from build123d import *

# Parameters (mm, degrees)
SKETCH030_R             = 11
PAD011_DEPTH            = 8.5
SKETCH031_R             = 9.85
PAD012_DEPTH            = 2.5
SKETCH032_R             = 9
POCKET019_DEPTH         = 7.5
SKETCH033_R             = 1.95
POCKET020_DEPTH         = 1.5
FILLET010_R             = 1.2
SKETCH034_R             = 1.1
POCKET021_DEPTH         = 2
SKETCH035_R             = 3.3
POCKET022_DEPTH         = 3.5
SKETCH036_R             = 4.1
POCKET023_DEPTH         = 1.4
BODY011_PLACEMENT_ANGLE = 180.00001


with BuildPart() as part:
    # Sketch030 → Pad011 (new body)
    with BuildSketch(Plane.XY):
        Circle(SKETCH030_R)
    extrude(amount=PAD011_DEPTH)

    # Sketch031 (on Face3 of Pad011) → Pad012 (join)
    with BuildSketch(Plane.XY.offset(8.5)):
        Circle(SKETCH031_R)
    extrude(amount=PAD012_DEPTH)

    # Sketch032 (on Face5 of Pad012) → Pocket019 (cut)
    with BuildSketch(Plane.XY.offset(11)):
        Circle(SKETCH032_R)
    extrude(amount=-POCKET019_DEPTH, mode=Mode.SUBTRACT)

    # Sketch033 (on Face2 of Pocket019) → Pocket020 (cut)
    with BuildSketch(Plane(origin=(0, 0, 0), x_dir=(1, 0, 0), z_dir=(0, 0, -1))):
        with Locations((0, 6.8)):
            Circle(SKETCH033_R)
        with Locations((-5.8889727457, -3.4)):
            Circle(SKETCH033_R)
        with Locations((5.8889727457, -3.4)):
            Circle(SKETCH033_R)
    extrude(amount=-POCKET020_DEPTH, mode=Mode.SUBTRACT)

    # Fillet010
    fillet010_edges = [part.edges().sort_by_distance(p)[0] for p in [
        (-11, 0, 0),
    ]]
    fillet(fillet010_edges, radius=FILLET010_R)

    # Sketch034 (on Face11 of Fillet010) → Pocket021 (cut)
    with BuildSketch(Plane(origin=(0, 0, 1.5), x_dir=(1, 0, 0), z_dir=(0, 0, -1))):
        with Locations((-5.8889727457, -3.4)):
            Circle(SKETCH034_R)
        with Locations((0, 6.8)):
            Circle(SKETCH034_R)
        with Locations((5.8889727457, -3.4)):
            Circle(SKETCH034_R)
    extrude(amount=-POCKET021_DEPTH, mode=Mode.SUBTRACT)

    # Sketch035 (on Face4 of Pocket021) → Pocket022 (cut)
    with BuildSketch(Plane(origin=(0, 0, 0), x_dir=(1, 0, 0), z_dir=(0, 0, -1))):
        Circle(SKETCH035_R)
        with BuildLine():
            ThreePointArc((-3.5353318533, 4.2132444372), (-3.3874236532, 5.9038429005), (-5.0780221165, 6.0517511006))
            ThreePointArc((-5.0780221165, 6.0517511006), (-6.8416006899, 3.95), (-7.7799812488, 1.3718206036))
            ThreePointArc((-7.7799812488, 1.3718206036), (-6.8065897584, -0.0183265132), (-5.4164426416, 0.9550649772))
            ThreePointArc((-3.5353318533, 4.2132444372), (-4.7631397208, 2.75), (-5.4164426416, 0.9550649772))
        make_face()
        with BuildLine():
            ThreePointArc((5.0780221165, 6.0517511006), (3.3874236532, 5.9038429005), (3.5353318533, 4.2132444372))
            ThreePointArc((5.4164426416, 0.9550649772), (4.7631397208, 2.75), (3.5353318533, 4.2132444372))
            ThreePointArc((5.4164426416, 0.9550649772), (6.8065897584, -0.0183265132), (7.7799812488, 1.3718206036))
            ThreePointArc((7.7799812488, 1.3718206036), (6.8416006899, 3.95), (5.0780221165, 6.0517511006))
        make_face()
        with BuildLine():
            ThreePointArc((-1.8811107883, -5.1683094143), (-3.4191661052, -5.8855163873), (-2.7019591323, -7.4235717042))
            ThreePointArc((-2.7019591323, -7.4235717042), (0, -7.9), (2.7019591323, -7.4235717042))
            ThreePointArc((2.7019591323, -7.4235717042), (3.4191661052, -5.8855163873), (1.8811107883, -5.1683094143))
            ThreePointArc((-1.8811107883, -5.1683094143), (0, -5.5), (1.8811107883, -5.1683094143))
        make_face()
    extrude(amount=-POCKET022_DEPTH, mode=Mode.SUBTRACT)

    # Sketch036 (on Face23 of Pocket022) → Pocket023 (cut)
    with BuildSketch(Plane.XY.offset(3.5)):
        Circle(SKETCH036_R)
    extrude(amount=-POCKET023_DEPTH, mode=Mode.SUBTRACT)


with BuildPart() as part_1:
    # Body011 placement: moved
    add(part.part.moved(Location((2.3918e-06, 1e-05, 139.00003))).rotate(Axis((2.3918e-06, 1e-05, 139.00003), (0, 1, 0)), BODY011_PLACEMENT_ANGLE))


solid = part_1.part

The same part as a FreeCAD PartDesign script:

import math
import FreeCAD as App
import Part
import Sketcher
from FreeCAD import Vector


def edges_at(feature, points):
    """Names of the edges that pass closest to the given points."""
    edges = feature.Shape.Edges
    near = lambda p: min(range(len(edges)), key=lambda i: edges[i].distToShape(Part.Vertex(*p))[0])
    return sorted({f"Edge{near(p) + 1}" for p in points})

doc = App.newDocument("Part")
body = doc.addObject("PartDesign::Body", "Body")

# Sketch on XY plane
sketch1 = body.newObject("Sketcher::SketchObject", "Sketch")
sketch1.AttachmentSupport = (doc.getObject("XY_Plane"), [""])
sketch1.MapMode = "FlatFace"
sketch1.addGeometry(Part.Circle(Vector(0, 0, 0), Vector(0, 0, 1), 11), False)
sketch1.addConstraint([
    Sketcher.Constraint("Coincident", 0, 3, -1, 1),
    Sketcher.Constraint("Diameter", 0, 22.0),
])
pad1 = body.newObject("PartDesign::Pad", "Pad")
pad1.Profile = sketch1
pad1.Length = 8.5

# Sketch on XY plane
sketch2 = body.newObject("Sketcher::SketchObject", "Sketch001")
sketch2.AttachmentSupport = (doc.getObject("XY_Plane"), [""])
sketch2.MapMode = "FlatFace"
sketch2.AttachmentOffset = App.Placement(Vector(0, 0, 8.5), App.Rotation())
sketch2.addGeometry(Part.Circle(Vector(0, 0, 0), Vector(0, 0, 1), 9.85), False)
sketch2.addConstraint([
    Sketcher.Constraint("Coincident", 0, 3, -1, 1),
    Sketcher.Constraint("Diameter", 0, 19.7),
])
pad2 = body.newObject("PartDesign::Pad", "Pad001")
pad2.Profile = sketch2
pad2.Length = 2.5

# Sketch on XY plane
sketch3 = body.newObject("Sketcher::SketchObject", "Sketch002")
sketch3.AttachmentSupport = (doc.getObject("XY_Plane"), [""])
sketch3.MapMode = "FlatFace"
sketch3.AttachmentOffset = App.Placement(Vector(0, 0, 11), App.Rotation())
sketch3.addGeometry(Part.Circle(Vector(0, 0, 0), Vector(0, 0, 1), 9), False)
sketch3.addConstraint([
    Sketcher.Constraint("Coincident", 0, 3, -1, 1),
    Sketcher.Constraint("Diameter", 0, 18.0),
])
pocket1 = body.newObject("PartDesign::Pocket", "Pocket")
pocket1.Profile = sketch3
pocket1.Length = 7.5

# Sketch on XY plane
sketch4 = body.newObject("Sketcher::SketchObject", "Sketch003")
sketch4.AttachmentSupport = (doc.getObject("XY_Plane"), [""])
sketch4.MapMode = "FlatFace"
sketch4.addGeometry([
    Part.Circle(Vector(0, -6.8, 0), Vector(0, 0, 1), 1.95),
    Part.Circle(Vector(-5.888973, 3.4, 0), Vector(0, 0, 1), 1.95),
    Part.Circle(Vector(5.888973, 3.4, 0), Vector(0, 0, 1), 1.95),
], False)
sketch4.addConstraint([
    Sketcher.Constraint("Equal", 0, 1),
    Sketcher.Constraint("Equal", 1, 2),
    Sketcher.Constraint("Symmetric", 1, 3, 2, 3, -2),
    Sketcher.Constraint("PointOnObject", 0, 3, -2),
    Sketcher.Constraint("Diameter", 0, 3.9),
    Sketcher.Constraint("DistanceY", 0, 3, -1, 1, 6.8),
    Sketcher.Constraint("DistanceY", -1, 1, 1, 3, 3.4),
    Sketcher.Constraint("DistanceX", 1, 3, -1, 1, 5.888973),
])
pocket2 = body.newObject("PartDesign::Pocket", "Pocket001")
pocket2.Profile = sketch4
pocket2.Length = 1.5
pocket2.Reversed = True
doc.recompute()

fillet = body.newObject("PartDesign::Fillet", "Fillet")
fillet.Base = (pocket2, edges_at(pocket2, [(-11, 0, 0)]))
fillet.Radius = 1.2

# Sketch on XY plane
sketch5 = body.newObject("Sketcher::SketchObject", "Sketch004")
sketch5.AttachmentSupport = (doc.getObject("XY_Plane"), [""])
sketch5.MapMode = "FlatFace"
sketch5.AttachmentOffset = App.Placement(Vector(0, 0, 1.5), App.Rotation())
sketch5.addGeometry([
    Part.Circle(Vector(-5.888973, 3.4, 0), Vector(0, 0, 1), 1.1),
    Part.Circle(Vector(0, -6.8, 0), Vector(0, 0, 1), 1.1),
    Part.Circle(Vector(5.888973, 3.4, 0), Vector(0, 0, 1), 1.1),
], False)
sketch5.addConstraint([
    Sketcher.Constraint("Equal", 0, 1),
    Sketcher.Constraint("Equal", 1, 2),
    Sketcher.Constraint("Symmetric", 0, 3, 2, 3, -2),
    Sketcher.Constraint("PointOnObject", 1, 3, -2),
    Sketcher.Constraint("Diameter", 0, 2.2),
    Sketcher.Constraint("DistanceY", -1, 1, 0, 3, 3.4),
    Sketcher.Constraint("DistanceY", 1, 3, -1, 1, 6.8),
    Sketcher.Constraint("DistanceX", 0, 3, -1, 1, 5.888973),
])
pocket3 = body.newObject("PartDesign::Pocket", "Pocket002")
pocket3.Profile = sketch5
pocket3.Length = 2
pocket3.Reversed = True

# Sketch on XY plane
sketch6 = body.newObject("Sketcher::SketchObject", "Sketch005")
sketch6.AttachmentSupport = (doc.getObject("XY_Plane"), [""])
sketch6.MapMode = "FlatFace"
sketch6.addGeometry([
    Part.Circle(Vector(0, 0, 0), Vector(0, 0, 1), 3.3),  # 0
    Part.ArcOfCircle(Part.Circle(Vector(-4.306677, -5.132498, 0), Vector(0, 0, 1), 1.2), math.radians(-130), math.radians(50)),  # 1
    Part.ArcOfCircle(Part.Circle(Vector(0, 0, 0), Vector(0, 0, 1), 7.9), math.radians(-170), math.radians(-130)),  # 2
    Part.ArcOfCircle(Part.Circle(Vector(-6.598212, -1.163443, 0), Vector(0, 0, 1), 1.2), math.radians(10), math.radians(190)),  # 3
    Part.ArcOfCircle(Part.Circle(Vector(0, 0, 0), Vector(0, 0, 1), 5.5), math.radians(-170), math.radians(-130)),  # 4
    Part.ArcOfCircle(Part.Circle(Vector(4.306677, -5.132498, 0), Vector(0, 0, 1), 1.2), math.radians(130), math.radians(310)),  # 5
    Part.ArcOfCircle(Part.Circle(Vector(0, 0, 0), Vector(0, 0, 1), 5.5), math.radians(-50), math.radians(-10)),  # 6
    Part.ArcOfCircle(Part.Circle(Vector(6.598212, -1.163443, 0), Vector(0, 0, 1), 1.2), math.radians(-10), math.radians(170)),  # 7
    Part.ArcOfCircle(Part.Circle(Vector(0, 0, 0), Vector(0, 0, 1), 7.9), math.radians(-50), math.radians(-10)),  # 8
    Part.ArcOfCircle(Part.Circle(Vector(-2.291535, 6.295941, 0), Vector(0, 0, 1), 1.2), math.radians(110), math.radians(290)),  # 9
    Part.ArcOfCircle(Part.Circle(Vector(0, 0, 0), Vector(0, 0, 1), 7.9), math.radians(70), math.radians(110)),  # 10
    Part.ArcOfCircle(Part.Circle(Vector(2.291535, 6.295941, 0), Vector(0, 0, 1), 1.2), math.radians(-110), math.radians(70)),  # 11
    Part.ArcOfCircle(Part.Circle(Vector(0, 0, 0), Vector(0, 0, 1), 5.5), math.radians(70), math.radians(110)),  # 12
], False)
sketch6.addConstraint([
    Sketcher.Constraint("Tangent", 1, 1, 2, 2),
    Sketcher.Constraint("Tangent", 2, 1, 3, 2),
    Sketcher.Constraint("Tangent", 3, 1, 4, 1),
    Sketcher.Constraint("Tangent", 4, 2, 1, 2),
    Sketcher.Constraint("Tangent", 5, 1, 6, 1),
    Sketcher.Constraint("Tangent", 6, 2, 7, 2),
    Sketcher.Constraint("Tangent", 7, 1, 8, 2),
    Sketcher.Constraint("Tangent", 8, 1, 5, 2),
    Sketcher.Constraint("Tangent", 9, 1, 10, 2),
    Sketcher.Constraint("Tangent", 10, 1, 11, 2),
    Sketcher.Constraint("Tangent", 11, 1, 12, 1),
    Sketcher.Constraint("Tangent", 12, 2, 9, 2),
    Sketcher.Constraint("Coincident", 0, 3, -1, 1),
    Sketcher.Constraint("Coincident", 2, 3, -1, 1),
    Sketcher.Constraint("Coincident", 4, 3, -1, 1),
    Sketcher.Constraint("Coincident", 6, 3, -1, 1),
    Sketcher.Constraint("Coincident", 8, 3, -1, 1),
    Sketcher.Constraint("Coincident", 10, 3, -1, 1),
    Sketcher.Constraint("Coincident", 12, 3, -1, 1),
    Sketcher.Constraint("Equal", 3, 5),
    Sketcher.Constraint("Equal", 4, 6),
    Sketcher.Constraint("Equal", 7, 9),
    Sketcher.Constraint("Equal", 8, 10),
    Sketcher.Constraint("Horizontal", 1, 3, 5, 3),
    Sketcher.Constraint("Horizontal", 3, 3, 7, 3),
    Sketcher.Constraint("Horizontal", 9, 3, 11, 3),
    Sketcher.Constraint("Diameter", 0, 6.6),
    Sketcher.Constraint("Radius", 1, 1.2),
    Sketcher.Constraint("Radius", 2, 7.9),
    Sketcher.Constraint("DistanceY", 4, 2, 3, 3, 3.049802),
    Sketcher.Constraint("DistanceX", 3, 3, -1, 1, 6.598212),
    Sketcher.Constraint("DistanceY", -1, 1, 9, 3, 6.295941),
])
pocket4 = body.newObject("PartDesign::Pocket", "Pocket003")
pocket4.Profile = sketch6
pocket4.Length = 3.5
pocket4.Reversed = True

# Sketch on XY plane
sketch7 = body.newObject("Sketcher::SketchObject", "Sketch006")
sketch7.AttachmentSupport = (doc.getObject("XY_Plane"), [""])
sketch7.MapMode = "FlatFace"
sketch7.AttachmentOffset = App.Placement(Vector(0, 0, 3.5), App.Rotation())
sketch7.addGeometry(Part.Circle(Vector(0, 0, 0), Vector(0, 0, 1), 4.1), False)
sketch7.addConstraint([
    Sketcher.Constraint("Coincident", 0, 3, -1, 1),
    Sketcher.Constraint("Diameter", 0, 8.2),
])
pocket5 = body.newObject("PartDesign::Pocket", "Pocket004")
pocket5.Profile = sketch7
pocket5.Length = 1.4
body2 = doc.addObject("PartDesign::Body", "Body001")
doc.recompute()

body.Placement = App.Placement(Vector(0.000002, 0.00001, 139.00003), App.Rotation(Vector(0, 1, 0), 180.00001))
boolean = body2.newObject("PartDesign::Boolean", "Boolean")
boolean.Type = "Fuse"
boolean.addObjects([body])

doc.recompute()
